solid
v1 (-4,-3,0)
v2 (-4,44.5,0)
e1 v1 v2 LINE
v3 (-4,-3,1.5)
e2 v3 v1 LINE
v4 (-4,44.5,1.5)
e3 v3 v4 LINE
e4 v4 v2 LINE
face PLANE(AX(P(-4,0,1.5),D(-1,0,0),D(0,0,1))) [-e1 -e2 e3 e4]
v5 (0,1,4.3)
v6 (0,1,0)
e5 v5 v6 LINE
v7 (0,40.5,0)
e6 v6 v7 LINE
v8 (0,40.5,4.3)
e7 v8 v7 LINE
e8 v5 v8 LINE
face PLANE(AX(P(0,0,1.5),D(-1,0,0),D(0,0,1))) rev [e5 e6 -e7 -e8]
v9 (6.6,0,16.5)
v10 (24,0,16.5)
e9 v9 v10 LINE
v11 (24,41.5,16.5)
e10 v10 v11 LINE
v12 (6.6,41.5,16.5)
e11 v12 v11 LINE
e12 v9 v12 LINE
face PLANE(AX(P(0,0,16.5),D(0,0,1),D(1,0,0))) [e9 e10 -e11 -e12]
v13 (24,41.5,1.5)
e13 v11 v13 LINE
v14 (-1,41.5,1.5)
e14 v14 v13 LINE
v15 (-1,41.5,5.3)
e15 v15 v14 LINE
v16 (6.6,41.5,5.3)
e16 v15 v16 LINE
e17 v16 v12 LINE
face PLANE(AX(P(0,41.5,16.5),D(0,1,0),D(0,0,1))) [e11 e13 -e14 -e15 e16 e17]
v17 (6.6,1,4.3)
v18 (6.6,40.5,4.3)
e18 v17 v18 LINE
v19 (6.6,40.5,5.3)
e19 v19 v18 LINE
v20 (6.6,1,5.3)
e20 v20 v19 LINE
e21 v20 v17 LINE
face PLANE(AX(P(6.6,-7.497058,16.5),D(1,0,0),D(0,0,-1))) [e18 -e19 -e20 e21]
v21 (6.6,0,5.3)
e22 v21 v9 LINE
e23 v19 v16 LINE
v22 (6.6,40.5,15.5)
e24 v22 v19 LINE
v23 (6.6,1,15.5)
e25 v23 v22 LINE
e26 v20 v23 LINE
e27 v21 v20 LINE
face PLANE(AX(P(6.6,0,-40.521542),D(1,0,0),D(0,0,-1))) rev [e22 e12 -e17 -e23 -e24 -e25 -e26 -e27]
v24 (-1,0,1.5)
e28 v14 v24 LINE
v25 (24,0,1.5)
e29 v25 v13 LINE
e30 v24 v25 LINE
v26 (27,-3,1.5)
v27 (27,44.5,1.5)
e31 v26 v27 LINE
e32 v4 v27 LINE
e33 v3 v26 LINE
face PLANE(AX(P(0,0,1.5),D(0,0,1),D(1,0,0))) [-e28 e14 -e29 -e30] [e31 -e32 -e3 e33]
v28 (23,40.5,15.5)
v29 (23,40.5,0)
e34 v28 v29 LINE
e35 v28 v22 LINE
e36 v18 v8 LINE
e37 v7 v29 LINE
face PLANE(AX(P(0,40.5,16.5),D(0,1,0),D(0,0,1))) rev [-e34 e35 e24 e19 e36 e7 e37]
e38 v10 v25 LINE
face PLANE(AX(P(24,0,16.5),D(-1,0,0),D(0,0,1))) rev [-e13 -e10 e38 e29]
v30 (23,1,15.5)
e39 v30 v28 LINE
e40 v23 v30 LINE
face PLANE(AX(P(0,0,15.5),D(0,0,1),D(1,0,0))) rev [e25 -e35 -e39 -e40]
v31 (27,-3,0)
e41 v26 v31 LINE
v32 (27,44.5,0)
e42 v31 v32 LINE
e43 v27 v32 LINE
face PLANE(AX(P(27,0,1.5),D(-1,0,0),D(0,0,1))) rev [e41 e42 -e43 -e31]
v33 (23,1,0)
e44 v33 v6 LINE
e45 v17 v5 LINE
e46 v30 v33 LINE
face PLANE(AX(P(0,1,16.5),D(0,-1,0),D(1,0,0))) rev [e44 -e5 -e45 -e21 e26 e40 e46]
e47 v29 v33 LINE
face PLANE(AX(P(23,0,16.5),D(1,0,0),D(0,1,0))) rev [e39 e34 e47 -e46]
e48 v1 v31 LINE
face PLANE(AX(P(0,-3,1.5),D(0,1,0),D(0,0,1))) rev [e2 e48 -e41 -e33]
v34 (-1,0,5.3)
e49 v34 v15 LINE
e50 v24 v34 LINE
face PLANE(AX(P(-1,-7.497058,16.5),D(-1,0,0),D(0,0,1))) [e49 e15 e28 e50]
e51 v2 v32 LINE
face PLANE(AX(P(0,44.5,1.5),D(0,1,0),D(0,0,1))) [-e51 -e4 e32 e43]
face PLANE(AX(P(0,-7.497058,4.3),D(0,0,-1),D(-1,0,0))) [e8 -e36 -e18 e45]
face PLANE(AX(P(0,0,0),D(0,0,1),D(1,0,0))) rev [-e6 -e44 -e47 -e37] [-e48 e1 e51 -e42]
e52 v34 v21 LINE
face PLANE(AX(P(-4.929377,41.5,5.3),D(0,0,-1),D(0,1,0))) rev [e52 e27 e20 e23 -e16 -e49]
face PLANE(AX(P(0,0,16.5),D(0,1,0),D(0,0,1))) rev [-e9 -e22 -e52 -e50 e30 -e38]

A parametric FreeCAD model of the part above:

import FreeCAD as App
import Part
import Sketcher
Q = App.Units.Quantity

doc = App.newDocument("Part")
body = doc.addObject("PartDesign::Body", "Body")

# Sketch on XY plane
sketch1 = doc.addObject("Sketcher::SketchObject", "Sketch")
body.addObject(sketch1)
sketch1.AttachmentSupport = (doc.XY_Plane, [""])
sketch1.MapMode = "FlatFace"
sketch1.addGeometry(Part.LineSegment(App.Vector(-4, 44, 0), App.Vector(-4, -3, 0)), False)
sketch1.addGeometry(Part.LineSegment(App.Vector(-4, -3, 0), App.Vector(27, -3, 0)), False)
sketch1.addGeometry(Part.LineSegment(App.Vector(27, -3, 0), App.Vector(27, 44, 0)), False)
sketch1.addGeometry(Part.LineSegment(App.Vector(27, 44, 0), App.Vector(-4, 44, 0)), False)
sketch1.addGeometry(Part.LineSegment(App.Vector(24, 0, 0), App.Vector(0, 0, 0)), False)
sketch1.addGeometry(Part.LineSegment(App.Vector(0, 0, 0), App.Vector(0, 42, 0)), False)
sketch1.addGeometry(Part.LineSegment(App.Vector(0, 42, 0), App.Vector(24, 42, 0)), False)
sketch1.addGeometry(Part.LineSegment(App.Vector(24, 42, 0), App.Vector(24, 0, 0)), False)
sketch1.addConstraint(Sketcher.Constraint("Coincident", 0, 2, 1, 1))
sketch1.addConstraint(Sketcher.Constraint("Coincident", 1, 2, 2, 1))
sketch1.addConstraint(Sketcher.Constraint("Coincident", 2, 2, 3, 1))
sketch1.addConstraint(Sketcher.Constraint("Coincident", 3, 2, 0, 1))
sketch1.addConstraint(Sketcher.Constraint("Coincident", 4, 2, 5, 1))
sketch1.addConstraint(Sketcher.Constraint("Coincident", 5, 2, 6, 1))
sketch1.addConstraint(Sketcher.Constraint("Coincident", 6, 2, 7, 1))
sketch1.addConstraint(Sketcher.Constraint("Coincident", 7, 2, 4, 1))
sketch1.addConstraint(Sketcher.Constraint("Vertical", 0))
sketch1.addConstraint(Sketcher.Constraint("Horizontal", 1))
sketch1.addConstraint(Sketcher.Constraint("Vertical", 2))
sketch1.addConstraint(Sketcher.Constraint("Horizontal", 3))
sketch1.addConstraint(Sketcher.Constraint("Horizontal", 4))
sketch1.addConstraint(Sketcher.Constraint("Vertical", 5))
sketch1.addConstraint(Sketcher.Constraint("Horizontal", 6))
sketch1.addConstraint(Sketcher.Constraint("Vertical", 7))
sketch1.addConstraint(Sketcher.Constraint("Coincident", 4, 2, -1, 1))
sketch1.addConstraint(Sketcher.Constraint("DistanceX", 1, 1, 1, 2, Q("31 mm")))
sketch1.addConstraint(Sketcher.Constraint("DistanceX", 4, 2, 4, 1, Q("24 mm")))
sketch1.addConstraint(Sketcher.Constraint("DistanceY", 0, 2, 0, 1, Q("47.5 mm")))
sketch1.addConstraint(Sketcher.Constraint("DistanceY", 5, 1, 5, 2, Q("41.5 mm")))
sketch1.addConstraint(Sketcher.Constraint("DistanceX", 0, 2, -1, 1, Q("4 mm")))
sketch1.addConstraint(Sketcher.Constraint("DistanceY", 0, 2, -1, 1, Q("3 mm")))
pad1 = doc.addObject("PartDesign::Pad", "Pad")
body.addObject(pad1)
pad1.Profile = sketch1
pad1.Length = 1.5

# Sketch on XY plane
sketch2 = doc.addObject("Sketcher::SketchObject", "Sketch001")
body.addObject(sketch2)
sketch2.AttachmentSupport = (doc.XY_Plane, [""])
sketch2.MapMode = "FlatFace"
sketch2.addGeometry(Part.LineSegment(App.Vector(0, 41.5, 0), App.Vector(0, 40.5, 0)), False)
sketch2.addGeometry(Part.LineSegment(App.Vector(0, 40.5, 0), App.Vector(23, 40.5, 0)), False)
sketch2.addGeometry(Part.LineSegment(App.Vector(23, 40.5, 0), App.Vector(23, 1, 0)), False)
sketch2.addGeometry(Part.LineSegment(App.Vector(23, 1, 0), App.Vector(0, 1, 0)), False)
sketch2.addGeometry(Part.LineSegment(App.Vector(0, 1, 0), App.Vector(0, 0, 0)), False)
sketch2.addGeometry(Part.LineSegment(App.Vector(0, 0, 0), App.Vector(24, 0, 0)), False)
sketch2.addGeometry(Part.LineSegment(App.Vector(24, 0, 0), App.Vector(24, 41.5, 0)), False)
sketch2.addGeometry(Part.LineSegment(App.Vector(24, 41.5, 0), App.Vector(0, 41.5, 0)), False)
sketch2.addConstraint(Sketcher.Constraint("Coincident", 0, 2, 1, 1))
sketch2.addConstraint(Sketcher.Constraint("Coincident", 1, 2, 2, 1))
sketch2.addConstraint(Sketcher.Constraint("Coincident", 2, 2, 3, 1))
sketch2.addConstraint(Sketcher.Constraint("Coincident", 3, 2, 4, 1))
sketch2.addConstraint(Sketcher.Constraint("Coincident", 4, 2, 5, 1))
sketch2.addConstraint(Sketcher.Constraint("Coincident", 5, 2, 6, 1))
sketch2.addConstraint(Sketcher.Constraint("Coincident", 6, 2, 7, 1))
sketch2.addConstraint(Sketcher.Constraint("Coincident", 7, 2, 0, 1))
sketch2.addConstraint(Sketcher.Constraint("Vertical", 0))
sketch2.addConstraint(Sketcher.Constraint("Horizontal", 1))
sketch2.addConstraint(Sketcher.Constraint("Vertical", 2))
sketch2.addConstraint(Sketcher.Constraint("Horizontal", 3))
sketch2.addConstraint(Sketcher.Constraint("Vertical", 4))
sketch2.addConstraint(Sketcher.Constraint("Horizontal", 5))
sketch2.addConstraint(Sketcher.Constraint("Vertical", 6))
sketch2.addConstraint(Sketcher.Constraint("Horizontal", 7))
sketch2.addConstraint(Sketcher.Constraint("Coincident", 4, 2, -1, 1))
sketch2.addConstraint(Sketcher.Constraint("PointOnObject", 0, 2, -2))
sketch2.addConstraint(Sketcher.Constraint("Equal", 0, 4))
sketch2.addConstraint(Sketcher.Constraint("DistanceX", 1, 1, 1, 2, Q("23 mm")))
sketch2.addConstraint(Sketcher.Constraint("DistanceX", 5, 1, 5, 2, Q("24 mm")))
sketch2.addConstraint(Sketcher.Constraint("DistanceY", 0, 2, 0, 1, Q("1 mm")))
sketch2.addConstraint(Sketcher.Constraint("DistanceY", 2, 2, 2, 1, Q("39.5 mm")))
pad2 = doc.addObject("PartDesign::Pad", "Pad001")
body.addObject(pad2)
pad2.Profile = sketch2
pad2.Length = 16.5

# Sketch on XY plane
sketch3 = doc.addObject("Sketcher::SketchObject", "Sketch002")
body.addObject(sketch3)
sketch3.AttachmentSupport = (doc.XY_Plane, [""])
sketch3.MapMode = "FlatFace"
sketch3.AttachmentOffset = App.Placement(App.Vector(0, 0, 16.5), App.Rotation())
sketch3.addGeometry(Part.LineSegment(App.Vector(0, 40, 0), App.Vector(0, 1, 0)), False)
sketch3.addGeometry(Part.LineSegment(App.Vector(0, 1, 0), App.Vector(23, 1, 0)), False)
sketch3.addGeometry(Part.LineSegment(App.Vector(23, 1, 0), App.Vector(23, 40, 0)), False)
sketch3.addGeometry(Part.LineSegment(App.Vector(23, 40, 0), App.Vector(0, 40, 0)), False)
sketch3.addConstraint(Sketcher.Constraint("Coincident", 0, 2, 1, 1))
sketch3.addConstraint(Sketcher.Constraint("Coincident", 1, 2, 2, 1))
sketch3.addConstraint(Sketcher.Constraint("Coincident", 2, 2, 3, 1))
sketch3.addConstraint(Sketcher.Constraint("Coincident", 3, 2, 0, 1))
sketch3.addConstraint(Sketcher.Constraint("Vertical", 0))
sketch3.addConstraint(Sketcher.Constraint("Horizontal", 1))
sketch3.addConstraint(Sketcher.Constraint("Vertical", 2))
sketch3.addConstraint(Sketcher.Constraint("Horizontal", 3))
sketch3.addConstraint(Sketcher.Constraint("PointOnObject", 0, 2, -2))
sketch3.addConstraint(Sketcher.Constraint("DistanceX", 1, 1, 1, 2, Q("23 mm")))
sketch3.addConstraint(Sketcher.Constraint("DistanceY", 0, 2, 0, 1, Q("39.5 mm")))
sketch3.addConstraint(Sketcher.Constraint("DistanceY", -1, 1, 0, 2, Q("1 mm")))
pad3 = doc.addObject("PartDesign::Pad", "Pad002")
body.addObject(pad3)
pad3.Profile = sketch3
pad3.Length = 1
pad3.Reversed = True

# Sketch on XY plane
sketch4 = doc.addObject("Sketcher::SketchObject", "Sketch003")
body.addObject(sketch4)
sketch4.AttachmentSupport = (doc.XY_Plane, [""])
sketch4.MapMode = "FlatFace"
sketch4.AttachmentOffset = App.Placement(App.Vector(0, 0, 16.5), App.Rotation())
sketch4.addGeometry(Part.LineSegment(App.Vector(0, 42, 0), App.Vector(0, 0, 0)), False)
sketch4.addGeometry(Part.LineSegment(App.Vector(0, 0, 0), App.Vector(7, 0, 0)), False)
sketch4.addGeometry(Part.LineSegment(App.Vector(7, 0, 0), App.Vector(7, 42, 0)), False)
sketch4.addGeometry(Part.LineSegment(App.Vector(7, 42, 0), App.Vector(0, 42, 0)), False)
sketch4.addConstraint(Sketcher.Constraint("Coincident", 0, 2, 1, 1))
sketch4.addConstraint(Sketcher.Constraint("Coincident", 1, 2, 2, 1))
sketch4.addConstraint(Sketcher.Constraint("Coincident", 2, 2, 3, 1))
sketch4.addConstraint(Sketcher.Constraint("Coincident", 3, 2, 0, 1))
sketch4.addConstraint(Sketcher.Constraint("Vertical", 0))
sketch4.addConstraint(Sketcher.Constraint("Horizontal", 1))
sketch4.addConstraint(Sketcher.Constraint("Vertical", 2))
sketch4.addConstraint(Sketcher.Constraint("Horizontal", 3))
sketch4.addConstraint(Sketcher.Constraint("Coincident", 0, 2, -1, 1))
sketch4.addConstraint(Sketcher.Constraint("DistanceX", 1, 1, 1, 2, Q("6.6 mm")))
sketch4.addConstraint(Sketcher.Constraint("DistanceY", 0, 2, 0, 1, Q("41.5 mm")))
pocket1 = doc.addObject("PartDesign::Pocket", "Pocket")
body.addObject(pocket1)
pocket1.Profile = sketch4
pocket1.Length = 15
body2 = doc.addObject("PartDesign::Body", "Body001")

# Sketch on XZ plane
sketch5 = doc.addObject("Sketcher::SketchObject", "Sketch004")
body2.addObject(sketch5)
sketch5.AttachmentSupport = (doc.getObject("XZ_Plane001"), [""])
sketch5.MapMode = "FlatFace"
sketch5.AttachmentOffset = App.Placement(App.Vector(0, 0, -40.5), App.Rotation())
sketch5.addGeometry(Part.LineSegment(App.Vector(-1, 1.5, 0), App.Vector(-1, 5.3, 0)), False)
sketch5.addGeometry(Part.LineSegment(App.Vector(-1, 5.3, 0), App.Vector(6.6, 5.3, 0)), False)
sketch5.addGeometry(Part.LineSegment(App.Vector(6.6, 5.3, 0), App.Vector(6.6, 4.3, 0)), False)
sketch5.addGeometry(Part.LineSegment(App.Vector(6.6, 4.3, 0), App.Vector(0, 4.3, 0)), False)
sketch5.addGeometry(Part.LineSegment(App.Vector(0, 4.3, 0), App.Vector(0, 1.5, 0)), False)
sketch5.addGeometry(Part.LineSegment(App.Vector(0, 1.5, 0), App.Vector(-1, 1.5, 0)), False)
sketch5.addConstraint(Sketcher.Constraint("Coincident", 0, 2, 1, 1))
sketch5.addConstraint(Sketcher.Constraint("Coincident", 1, 2, 2, 1))
sketch5.addConstraint(Sketcher.Constraint("Coincident", 2, 2, 3, 1))
sketch5.addConstraint(Sketcher.Constraint("Coincident", 3, 2, 4, 1))
sketch5.addConstraint(Sketcher.Constraint("Coincident", 4, 2, 5, 1))
sketch5.addConstraint(Sketcher.Constraint("Coincident", 5, 2, 0, 1))
sketch5.addConstraint(Sketcher.Constraint("Vertical", 0))
sketch5.addConstraint(Sketcher.Constraint("Horizontal", 1))
sketch5.addConstraint(Sketcher.Constraint("Vertical", 2))
sketch5.addConstraint(Sketcher.Constraint("Horizontal", 3))
sketch5.addConstraint(Sketcher.Constraint("Vertical", 4))
sketch5.addConstraint(Sketcher.Constraint("Horizontal", 5))
sketch5.addConstraint(Sketcher.Constraint("PointOnObject", 3, 2, -2))
sketch5.addConstraint(Sketcher.Constraint("Equal", 5, 2))
sketch5.addConstraint(Sketcher.Constraint("DistanceX", 5, 2, 5, 1, Q("1 mm")))
sketch5.addConstraint(Sketcher.Constraint("DistanceX", 1, 1, 1, 2, Q("7.6 mm")))
sketch5.addConstraint(Sketcher.Constraint("DistanceY", 0, 1, 0, 2, Q("3.8 mm")))
sketch5.addConstraint(Sketcher.Constraint("DistanceY", -1, 1, 0, 2, Q("5.3 mm")))
pad4 = doc.addObject("PartDesign::Pad", "Pad003")
body2.addObject(pad4)
pad4.Profile = sketch5
pad4.Length = 39.5
doc.recompute()

boolean = doc.addObject("PartDesign::Boolean", "Boolean")
body.addObject(boolean)
boolean.Type = "Fuse"
boolean.addObjects([body2])

# Sketch on YZ plane
sketch6 = doc.addObject("Sketcher::SketchObject", "Sketch005")
body.addObject(sketch6)
sketch6.AttachmentSupport = (doc.YZ_Plane, [""])
sketch6.MapMode = "FlatFace"
sketch6.AttachmentOffset = App.Placement(App.Vector(0, 0, 6.6), App.Rotation())
sketch6.addGeometry(Part.LineSegment(App.Vector(41.5, 1.5, 0), App.Vector(40.5, 1.5, 0)), False)
sketch6.addGeometry(Part.LineSegment(App.Vector(40.5, 1.5, 0), App.Vector(40.5, 5.3, 0)), False)
sketch6.addGeometry(Part.LineSegment(App.Vector(40.5, 5.3, 0), App.Vector(41.5, 5.3, 0)), False)
sketch6.addGeometry(Part.LineSegment(App.Vector(41.5, 5.3, 0), App.Vector(41.5, 1.5, 0)), False)
sketch6.addGeometry(Part.LineSegment(App.Vector(1, 1.5, 0), App.Vector(0, 1.5, 0)), False)
sketch6.addGeometry(Part.LineSegment(App.Vector(0, 1.5, 0), App.Vector(0, 5.3, 0)), False)
sketch6.addGeometry(Part.LineSegment(App.Vector(0, 5.3, 0), App.Vector(1, 5.3, 0)), False)
sketch6.addGeometry(Part.LineSegment(App.Vector(1, 5.3, 0), App.Vector(1, 1.5, 0)), False)
sketch6.addConstraint(Sketcher.Constraint("Coincident", 0, 2, 1, 1))
sketch6.addConstraint(Sketcher.Constraint("Coincident", 1, 2, 2, 1))
sketch6.addConstraint(Sketcher.Constraint("Coincident", 2, 2, 3, 1))
sketch6.addConstraint(Sketcher.Constraint("Coincident", 3, 2, 0, 1))
sketch6.addConstraint(Sketcher.Constraint("Coincident", 4, 2, 5, 1))
sketch6.addConstraint(Sketcher.Constraint("Coincident", 5, 2, 6, 1))
sketch6.addConstraint(Sketcher.Constraint("Coincident", 6, 2, 7, 1))
sketch6.addConstraint(Sketcher.Constraint("Coincident", 7, 2, 4, 1))
sketch6.addConstraint(Sketcher.Constraint("Horizontal", 0))
sketch6.addConstraint(Sketcher.Constraint("Vertical", 1))
sketch6.addConstraint(Sketcher.Constraint("Horizontal", 2))
sketch6.addConstraint(Sketcher.Constraint("Vertical", 3))
sketch6.addConstraint(Sketcher.Constraint("Horizontal", 4))
sketch6.addConstraint(Sketcher.Constraint("Vertical", 5))
sketch6.addConstraint(Sketcher.Constraint("Horizontal", 6))
sketch6.addConstraint(Sketcher.Constraint("Vertical", 7))
sketch6.addConstraint(Sketcher.Constraint("PointOnObject", 4, 2, -2))
sketch6.addConstraint(Sketcher.Constraint("Horizontal", 3, 2, 4, 2))
sketch6.addConstraint(Sketcher.Constraint("Horizontal", 2, 2, 5, 2))
sketch6.addConstraint(Sketcher.Constraint("Equal", 2, 4))
sketch6.addConstraint(Sketcher.Constraint("DistanceX", 0, 2, 0, 1, Q("1 mm")))
sketch6.addConstraint(Sketcher.Constraint("DistanceY", 1, 1, 1, 2, Q("3.8 mm")))
sketch6.addConstraint(Sketcher.Constraint("DistanceX", -1, 1, 0, 2, Q("40.5 mm")))
sketch6.addConstraint(Sketcher.Constraint("DistanceY", -1, 1, 0, 2, Q("1.5 mm")))
pad5 = doc.addObject("PartDesign::Pad", "Pad004")
body.addObject(pad5)
pad5.Profile = sketch6
pad5.Length = 7.6
pad5.Reversed = True

doc.recompute()
